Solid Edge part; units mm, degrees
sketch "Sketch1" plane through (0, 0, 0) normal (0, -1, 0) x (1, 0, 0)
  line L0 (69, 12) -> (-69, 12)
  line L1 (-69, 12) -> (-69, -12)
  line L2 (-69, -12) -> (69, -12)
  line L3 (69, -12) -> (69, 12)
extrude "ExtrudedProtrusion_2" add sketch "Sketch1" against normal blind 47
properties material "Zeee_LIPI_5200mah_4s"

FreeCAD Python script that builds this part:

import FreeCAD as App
import Part
import Sketcher
from FreeCAD import Vector
Q = App.Units.Quantity


def add_polygon(sketch, points):
    """Adds a closed chain of lines whose ends are joined by coincident constraints."""
    first, n = sketch.GeometryCount, len(points)
    for a, b in zip(points, points[1:] + points[:1]):
        sketch.addGeometry(Part.LineSegment(App.Vector(*a, 0), App.Vector(*b, 0)), False)
    for i in range(n):
        sketch.addConstraint(Sketcher.Constraint("Coincident", first + i, 2, first + (i + 1) % n, 1))

doc = App.newDocument("Part")
body = doc.addObject("PartDesign::Body", "Body")

# Sketch on XZ plane
sketch1 = doc.addObject("Sketcher::SketchObject", "Sketch")
body.addObject(sketch1)
sketch1.AttachmentSupport = (doc.XZ_Plane, [""])
sketch1.MapMode = "FlatFace"
add_polygon(sketch1, [(69, -12), (69, 12), (-69, 12), (-69, -12)])  # lines 0-3
sketch1.addConstraint(Sketcher.Constraint("Vertical", 0))
sketch1.addConstraint(Sketcher.Constraint("Horizontal", 1))
sketch1.addConstraint(Sketcher.Constraint("Vertical", 2))
sketch1.addConstraint(Sketcher.Constraint("Horizontal", 3))
sketch1.addConstraint(Sketcher.Constraint("Symmetric", 0, 2, 2, 2, -1, 1))
sketch1.addConstraint(Sketcher.Constraint("DistanceX", 1, 2, 1, 1, Q("138 mm")))
sketch1.addConstraint(Sketcher.Constraint("DistanceY", 0, 1, 0, 2, Q("24 mm")))
pad1 = doc.addObject("PartDesign::Pad", "Pad")
body.addObject(pad1)
pad1.Profile = sketch1
pad1.Length = 47
pad1.Reversed = True

doc.recompute()
